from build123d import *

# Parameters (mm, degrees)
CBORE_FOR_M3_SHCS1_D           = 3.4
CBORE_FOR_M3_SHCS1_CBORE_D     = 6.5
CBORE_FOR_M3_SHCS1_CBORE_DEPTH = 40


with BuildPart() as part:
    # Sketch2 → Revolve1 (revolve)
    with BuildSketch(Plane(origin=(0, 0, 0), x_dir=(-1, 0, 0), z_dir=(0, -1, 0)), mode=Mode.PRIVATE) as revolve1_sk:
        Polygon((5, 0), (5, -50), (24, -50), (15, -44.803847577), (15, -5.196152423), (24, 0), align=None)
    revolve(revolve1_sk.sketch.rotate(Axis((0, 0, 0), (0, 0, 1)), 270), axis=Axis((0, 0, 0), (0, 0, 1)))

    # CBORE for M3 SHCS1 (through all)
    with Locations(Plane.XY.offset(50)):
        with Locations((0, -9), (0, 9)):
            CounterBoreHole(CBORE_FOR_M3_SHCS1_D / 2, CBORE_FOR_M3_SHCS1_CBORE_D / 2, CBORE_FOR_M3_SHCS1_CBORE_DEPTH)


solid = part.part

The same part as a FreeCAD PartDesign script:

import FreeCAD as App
import Part
import Sketcher
from FreeCAD import Vector
Q = App.Units.Quantity


def add_polygon(sketch, points):
    """Adds a closed chain of lines whose ends are joined by coincident constraints."""
    first, n = sketch.GeometryCount, len(points)
    for a, b in zip(points, points[1:] + points[:1]):
        sketch.addGeometry(Part.LineSegment(App.Vector(*a, 0), App.Vector(*b, 0)), False)
    for i in range(n):
        sketch.addConstraint(Sketcher.Constraint("Coincident", first + i, 2, first + (i + 1) % n, 1))

doc = App.newDocument("Part")
body = doc.addObject("PartDesign::Body", "Body")

# Sketch on XZ plane
sketch1 = body.newObject("Sketcher::SketchObject", "Sketch")
sketch1.AttachmentSupport = (doc.getObject("XZ_Plane"), [""])
sketch1.MapMode = "FlatFace"
add_polygon(sketch1, [(-5, 0), (-5, 50), (-24, 50), (-15, 45), (-15, 5), (-24, 0)])  # lines 0-5
sketch1.addConstraint(Sketcher.Constraint("Vertical", 0))
sketch1.addConstraint(Sketcher.Constraint("Horizontal", 1))
sketch1.addConstraint(Sketcher.Constraint("Vertical", 3))
sketch1.addConstraint(Sketcher.Constraint("Horizontal", 5))
sketch1.addConstraint(Sketcher.Constraint("PointOnObject", 4, 2, -1))
sketch1.addConstraint(Sketcher.Constraint("Vertical", 1, 2, 4, 2))
sketch1.addConstraint(Sketcher.Constraint("Equal", 2, 4))
sketch1.addConstraint(Sketcher.Constraint("DistanceX", 1, 2, 1, 1, Q("19 mm")))
sketch1.addConstraint(Sketcher.Constraint("DistanceY", 0, 1, 0, 2, Q("50 mm")))
sketch1.addConstraint(Sketcher.Constraint("Angle", 2, Q("-30 deg")))
sketch1.addConstraint(Sketcher.Constraint("DistanceX", 0, 2, -1, 1, Q("5 mm")))
sketch1.addConstraint(Sketcher.Constraint("DistanceX", 2, 2, -1, 1, Q("15 mm")))
revolution = body.newObject("PartDesign::Revolution", "Revolution")
revolution.Profile = sketch1
revolution.ReferenceAxis = (sketch1, ["V_Axis"])
revolution.Angle = 360

# Sketch on XY plane
sketch2 = body.newObject("Sketcher::SketchObject", "Sketch001")
sketch2.AttachmentSupport = (doc.getObject("XY_Plane"), [""])
sketch2.MapMode = "FlatFace"
sketch2.AttachmentOffset = App.Placement(Vector(0, 0, 50), App.Rotation())
sketch2.addGeometry(Part.Circle(Vector(0, -9, 0), Vector(0, 0, 1), 1.7), False)
sketch2.addGeometry(Part.Circle(Vector(0, 9, 0), Vector(0, 0, 1), 1.7), False)
sketch2.addConstraint(Sketcher.Constraint("Equal", 0, 1))
sketch2.addConstraint(Sketcher.Constraint("Symmetric", 0, 3, 1, 3, -1, 1))
sketch2.addConstraint(Sketcher.Constraint("PointOnObject", 0, 3, -2))
sketch2.addConstraint(Sketcher.Constraint("Diameter", 0, Q("3.4 mm")))
sketch2.addConstraint(Sketcher.Constraint("DistanceY", 0, 3, -1, 1, Q("9 mm")))
doc.recompute()
hole = body.newObject("PartDesign::Hole", "Hole")
hole.Profile = sketch2
hole.ThreadType = "None"
hole.Diameter = 3.4
hole.DepthType = "ThroughAll"
hole.HoleCutType = "Counterbore"
hole.HoleCutDiameter = 6.5
hole.HoleCutDepth = 40

doc.recompute()
